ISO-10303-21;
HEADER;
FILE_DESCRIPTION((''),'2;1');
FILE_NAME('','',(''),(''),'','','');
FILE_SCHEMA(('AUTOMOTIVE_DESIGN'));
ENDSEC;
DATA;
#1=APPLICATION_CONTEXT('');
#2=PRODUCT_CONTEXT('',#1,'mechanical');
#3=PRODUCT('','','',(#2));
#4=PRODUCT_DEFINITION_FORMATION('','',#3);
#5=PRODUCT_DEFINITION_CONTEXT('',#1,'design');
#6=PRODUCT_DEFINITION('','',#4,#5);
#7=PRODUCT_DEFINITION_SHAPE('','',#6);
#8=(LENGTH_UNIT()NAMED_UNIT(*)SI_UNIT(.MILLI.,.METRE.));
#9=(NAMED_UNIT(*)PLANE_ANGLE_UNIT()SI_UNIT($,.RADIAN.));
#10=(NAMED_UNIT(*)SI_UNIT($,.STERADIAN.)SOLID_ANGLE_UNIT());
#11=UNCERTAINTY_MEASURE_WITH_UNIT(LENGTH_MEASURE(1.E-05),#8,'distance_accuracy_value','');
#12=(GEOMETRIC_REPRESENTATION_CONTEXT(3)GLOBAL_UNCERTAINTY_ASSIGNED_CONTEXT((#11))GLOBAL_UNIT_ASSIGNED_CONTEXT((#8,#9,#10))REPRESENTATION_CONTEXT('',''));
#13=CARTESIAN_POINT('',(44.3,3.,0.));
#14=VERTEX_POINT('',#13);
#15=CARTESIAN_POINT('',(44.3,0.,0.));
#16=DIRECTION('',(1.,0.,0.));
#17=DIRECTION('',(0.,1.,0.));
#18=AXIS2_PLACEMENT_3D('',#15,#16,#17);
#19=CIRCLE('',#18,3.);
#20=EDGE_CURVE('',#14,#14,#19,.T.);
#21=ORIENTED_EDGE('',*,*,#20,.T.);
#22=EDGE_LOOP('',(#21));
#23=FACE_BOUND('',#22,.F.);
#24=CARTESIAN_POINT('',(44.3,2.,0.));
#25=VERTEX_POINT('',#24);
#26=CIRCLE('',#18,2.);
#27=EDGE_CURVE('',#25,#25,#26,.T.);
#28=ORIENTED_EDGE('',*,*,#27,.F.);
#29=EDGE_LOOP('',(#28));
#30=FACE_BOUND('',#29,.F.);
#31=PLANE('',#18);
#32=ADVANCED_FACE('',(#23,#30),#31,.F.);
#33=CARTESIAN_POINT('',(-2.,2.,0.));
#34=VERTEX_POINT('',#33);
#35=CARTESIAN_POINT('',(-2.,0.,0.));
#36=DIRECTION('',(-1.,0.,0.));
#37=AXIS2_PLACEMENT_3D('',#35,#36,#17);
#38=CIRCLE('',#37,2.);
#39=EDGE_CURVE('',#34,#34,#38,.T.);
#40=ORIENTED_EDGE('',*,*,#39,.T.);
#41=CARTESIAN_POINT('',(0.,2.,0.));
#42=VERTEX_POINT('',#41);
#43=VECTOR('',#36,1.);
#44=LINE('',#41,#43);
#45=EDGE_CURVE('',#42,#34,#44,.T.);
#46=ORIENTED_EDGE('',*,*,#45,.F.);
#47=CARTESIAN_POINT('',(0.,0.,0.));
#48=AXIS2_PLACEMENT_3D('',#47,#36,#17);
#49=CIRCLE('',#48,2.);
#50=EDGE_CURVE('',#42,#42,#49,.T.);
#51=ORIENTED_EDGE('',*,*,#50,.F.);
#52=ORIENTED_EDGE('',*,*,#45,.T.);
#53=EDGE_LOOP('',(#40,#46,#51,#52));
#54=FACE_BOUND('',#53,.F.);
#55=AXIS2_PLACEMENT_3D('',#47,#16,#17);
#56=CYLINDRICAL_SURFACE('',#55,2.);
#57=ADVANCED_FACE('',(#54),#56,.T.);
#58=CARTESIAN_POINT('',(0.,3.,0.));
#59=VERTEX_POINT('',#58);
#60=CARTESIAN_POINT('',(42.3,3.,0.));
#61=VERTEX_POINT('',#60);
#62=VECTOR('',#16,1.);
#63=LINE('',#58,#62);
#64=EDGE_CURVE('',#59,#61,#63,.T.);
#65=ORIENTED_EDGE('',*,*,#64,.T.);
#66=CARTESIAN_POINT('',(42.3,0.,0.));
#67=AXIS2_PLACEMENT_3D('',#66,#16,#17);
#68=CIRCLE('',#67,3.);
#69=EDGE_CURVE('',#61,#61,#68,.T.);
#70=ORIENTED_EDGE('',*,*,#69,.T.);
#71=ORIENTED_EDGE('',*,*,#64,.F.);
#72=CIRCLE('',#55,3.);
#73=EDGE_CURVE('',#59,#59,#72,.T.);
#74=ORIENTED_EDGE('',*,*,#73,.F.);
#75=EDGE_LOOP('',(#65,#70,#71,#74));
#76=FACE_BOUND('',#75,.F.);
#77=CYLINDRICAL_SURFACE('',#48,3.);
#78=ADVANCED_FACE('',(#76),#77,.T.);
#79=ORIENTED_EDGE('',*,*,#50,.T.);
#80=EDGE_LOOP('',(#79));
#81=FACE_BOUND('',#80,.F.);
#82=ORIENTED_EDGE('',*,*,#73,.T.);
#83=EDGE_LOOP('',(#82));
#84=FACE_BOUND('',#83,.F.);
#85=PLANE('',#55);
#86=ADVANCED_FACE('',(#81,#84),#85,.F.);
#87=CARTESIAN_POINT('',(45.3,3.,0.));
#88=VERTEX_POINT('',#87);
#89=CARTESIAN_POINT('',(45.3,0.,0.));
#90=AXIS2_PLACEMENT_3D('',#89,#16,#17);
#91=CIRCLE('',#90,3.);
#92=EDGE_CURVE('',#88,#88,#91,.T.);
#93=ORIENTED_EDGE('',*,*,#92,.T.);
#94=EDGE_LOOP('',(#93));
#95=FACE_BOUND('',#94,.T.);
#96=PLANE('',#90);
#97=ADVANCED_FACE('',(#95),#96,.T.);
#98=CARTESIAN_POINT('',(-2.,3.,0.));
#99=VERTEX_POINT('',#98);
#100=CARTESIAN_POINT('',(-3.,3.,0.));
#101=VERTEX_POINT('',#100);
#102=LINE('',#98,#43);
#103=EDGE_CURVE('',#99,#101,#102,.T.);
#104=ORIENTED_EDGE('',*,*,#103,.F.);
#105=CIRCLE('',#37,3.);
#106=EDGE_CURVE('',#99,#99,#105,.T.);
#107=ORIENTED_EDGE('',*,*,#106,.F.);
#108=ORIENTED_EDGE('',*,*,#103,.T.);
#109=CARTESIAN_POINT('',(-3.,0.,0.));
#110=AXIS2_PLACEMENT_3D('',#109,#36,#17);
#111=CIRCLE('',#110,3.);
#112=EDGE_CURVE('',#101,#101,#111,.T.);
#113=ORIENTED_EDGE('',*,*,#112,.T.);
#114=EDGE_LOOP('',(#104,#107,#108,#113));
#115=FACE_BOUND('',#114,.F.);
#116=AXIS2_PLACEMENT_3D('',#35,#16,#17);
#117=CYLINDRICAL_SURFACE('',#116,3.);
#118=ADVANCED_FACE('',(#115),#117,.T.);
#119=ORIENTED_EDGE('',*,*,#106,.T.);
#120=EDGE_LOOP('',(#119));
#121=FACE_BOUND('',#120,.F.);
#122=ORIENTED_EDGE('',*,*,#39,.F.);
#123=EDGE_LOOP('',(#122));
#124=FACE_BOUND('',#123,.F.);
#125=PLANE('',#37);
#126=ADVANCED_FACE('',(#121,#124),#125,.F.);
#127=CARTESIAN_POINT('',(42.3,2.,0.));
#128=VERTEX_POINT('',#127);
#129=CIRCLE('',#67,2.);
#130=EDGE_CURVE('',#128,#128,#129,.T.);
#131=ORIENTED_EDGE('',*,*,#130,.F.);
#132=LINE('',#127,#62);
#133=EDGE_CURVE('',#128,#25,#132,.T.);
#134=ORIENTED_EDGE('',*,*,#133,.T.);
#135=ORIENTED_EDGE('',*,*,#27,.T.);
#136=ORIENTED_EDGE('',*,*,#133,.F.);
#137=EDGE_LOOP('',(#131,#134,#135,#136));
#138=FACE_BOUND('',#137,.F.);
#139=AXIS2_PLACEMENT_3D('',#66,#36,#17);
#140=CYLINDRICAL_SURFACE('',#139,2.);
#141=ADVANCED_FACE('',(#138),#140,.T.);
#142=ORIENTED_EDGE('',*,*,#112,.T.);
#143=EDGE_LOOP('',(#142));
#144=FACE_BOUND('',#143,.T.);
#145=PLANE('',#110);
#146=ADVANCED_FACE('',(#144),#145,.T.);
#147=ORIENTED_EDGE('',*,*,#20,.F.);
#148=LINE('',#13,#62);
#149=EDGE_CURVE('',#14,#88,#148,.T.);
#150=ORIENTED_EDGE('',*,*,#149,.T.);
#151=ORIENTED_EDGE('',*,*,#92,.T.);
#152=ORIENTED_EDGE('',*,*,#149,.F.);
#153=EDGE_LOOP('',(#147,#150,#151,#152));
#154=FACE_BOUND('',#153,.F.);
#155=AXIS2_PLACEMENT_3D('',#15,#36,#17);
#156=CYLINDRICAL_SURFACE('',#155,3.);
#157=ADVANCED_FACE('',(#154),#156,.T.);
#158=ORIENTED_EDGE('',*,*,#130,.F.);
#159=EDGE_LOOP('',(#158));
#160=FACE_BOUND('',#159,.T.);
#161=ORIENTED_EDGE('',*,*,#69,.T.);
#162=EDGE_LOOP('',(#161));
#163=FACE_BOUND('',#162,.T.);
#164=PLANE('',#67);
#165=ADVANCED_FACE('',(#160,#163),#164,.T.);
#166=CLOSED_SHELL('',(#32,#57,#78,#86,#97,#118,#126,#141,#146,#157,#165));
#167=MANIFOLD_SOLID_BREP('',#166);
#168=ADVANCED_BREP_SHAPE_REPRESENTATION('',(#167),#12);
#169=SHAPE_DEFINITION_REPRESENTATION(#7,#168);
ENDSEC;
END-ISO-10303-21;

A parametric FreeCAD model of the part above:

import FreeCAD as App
import Part
import Sketcher
Q = App.Units.Quantity

doc = App.newDocument("Part")
body = doc.addObject("PartDesign::Body", "Body")

# Sketch on YZ plane
sketch1 = body.newObject("Sketcher::SketchObject", "Sketch")
sketch1.AttachmentSupport = (doc.getObject("YZ_Plane"), [""])
sketch1.MapMode = "FlatFace"
sketch1.addGeometry(Part.Circle(App.Vector(0, 0, 0), App.Vector(0, 0, 1), 3), False)
sketch1.addConstraint(Sketcher.Constraint("Coincident", 0, 3, -1, 1))
sketch1.addConstraint(Sketcher.Constraint("Diameter", 0, Q("6 mm")))
pad1 = body.newObject("PartDesign::Pad", "Pad")
pad1.Profile = sketch1
pad1.Length = 42.3

# Sketch on YZ plane
sketch2 = body.newObject("Sketcher::SketchObject", "Sketch001")
sketch2.AttachmentSupport = (doc.getObject("YZ_Plane"), [""])
sketch2.MapMode = "FlatFace"
sketch2.AttachmentOffset = App.Placement(App.Vector(0, 0, 42.3), App.Rotation())
sketch2.addGeometry(Part.Circle(App.Vector(0, 0, 0), App.Vector(0, 0, 1), 2), False)
sketch2.addConstraint(Sketcher.Constraint("Coincident", 0, 3, -1, 1))
sketch2.addConstraint(Sketcher.Constraint("Diameter", 0, Q("4 mm")))
pad2 = body.newObject("PartDesign::Pad", "Pad001")
pad2.Profile = sketch2
pad2.Length = 2

# Sketch on YZ plane
sketch3 = body.newObject("Sketcher::SketchObject", "Sketch002")
sketch3.AttachmentSupport = (doc.getObject("YZ_Plane"), [""])
sketch3.MapMode = "FlatFace"
sketch3.AttachmentOffset = App.Placement(App.Vector(0, 0, 44.3), App.Rotation())
sketch3.addGeometry(Part.Circle(App.Vector(0, 0, 0), App.Vector(0, 0, 1), 3), False)
sketch3.addConstraint(Sketcher.Constraint("Coincident", 0, 3, -1, 1))
sketch3.addConstraint(Sketcher.Constraint("Diameter", 0, Q("6 mm")))
pad3 = body.newObject("PartDesign::Pad", "Pad002")
pad3.Profile = sketch3
pad3.Length = 1

# Sketch on YZ plane
sketch4 = body.newObject("Sketcher::SketchObject", "Sketch003")
sketch4.AttachmentSupport = (doc.getObject("YZ_Plane"), [""])
sketch4.MapMode = "FlatFace"
sketch4.addGeometry(Part.Circle(App.Vector(0, 0, 0), App.Vector(0, 0, 1), 2), False)
sketch4.addConstraint(Sketcher.Constraint("Coincident", 0, 3, -1, 1))
sketch4.addConstraint(Sketcher.Constraint("Diameter", 0, Q("4 mm")))
pad4 = body.newObject("PartDesign::Pad", "Pad003")
pad4.Profile = sketch4
pad4.Length = 2
pad4.Reversed = True

# Sketch on YZ plane
sketch5 = body.newObject("Sketcher::SketchObject", "Sketch004")
sketch5.AttachmentSupport = (doc.getObject("YZ_Plane"), [""])
sketch5.MapMode = "FlatFace"
sketch5.AttachmentOffset = App.Placement(App.Vector(0, 0, -2), App.Rotation())
sketch5.addGeometry(Part.Circle(App.Vector(0, 0, 0), App.Vector(0, 0, 1), 3), False)
sketch5.addConstraint(Sketcher.Constraint("Coincident", 0, 3, -1, 1))
sketch5.addConstraint(Sketcher.Constraint("Diameter", 0, Q("6 mm")))
pad5 = body.newObject("PartDesign::Pad", "Pad004")
pad5.Profile = sketch5
pad5.Length = 1
pad5.Reversed = True

doc.recompute()
